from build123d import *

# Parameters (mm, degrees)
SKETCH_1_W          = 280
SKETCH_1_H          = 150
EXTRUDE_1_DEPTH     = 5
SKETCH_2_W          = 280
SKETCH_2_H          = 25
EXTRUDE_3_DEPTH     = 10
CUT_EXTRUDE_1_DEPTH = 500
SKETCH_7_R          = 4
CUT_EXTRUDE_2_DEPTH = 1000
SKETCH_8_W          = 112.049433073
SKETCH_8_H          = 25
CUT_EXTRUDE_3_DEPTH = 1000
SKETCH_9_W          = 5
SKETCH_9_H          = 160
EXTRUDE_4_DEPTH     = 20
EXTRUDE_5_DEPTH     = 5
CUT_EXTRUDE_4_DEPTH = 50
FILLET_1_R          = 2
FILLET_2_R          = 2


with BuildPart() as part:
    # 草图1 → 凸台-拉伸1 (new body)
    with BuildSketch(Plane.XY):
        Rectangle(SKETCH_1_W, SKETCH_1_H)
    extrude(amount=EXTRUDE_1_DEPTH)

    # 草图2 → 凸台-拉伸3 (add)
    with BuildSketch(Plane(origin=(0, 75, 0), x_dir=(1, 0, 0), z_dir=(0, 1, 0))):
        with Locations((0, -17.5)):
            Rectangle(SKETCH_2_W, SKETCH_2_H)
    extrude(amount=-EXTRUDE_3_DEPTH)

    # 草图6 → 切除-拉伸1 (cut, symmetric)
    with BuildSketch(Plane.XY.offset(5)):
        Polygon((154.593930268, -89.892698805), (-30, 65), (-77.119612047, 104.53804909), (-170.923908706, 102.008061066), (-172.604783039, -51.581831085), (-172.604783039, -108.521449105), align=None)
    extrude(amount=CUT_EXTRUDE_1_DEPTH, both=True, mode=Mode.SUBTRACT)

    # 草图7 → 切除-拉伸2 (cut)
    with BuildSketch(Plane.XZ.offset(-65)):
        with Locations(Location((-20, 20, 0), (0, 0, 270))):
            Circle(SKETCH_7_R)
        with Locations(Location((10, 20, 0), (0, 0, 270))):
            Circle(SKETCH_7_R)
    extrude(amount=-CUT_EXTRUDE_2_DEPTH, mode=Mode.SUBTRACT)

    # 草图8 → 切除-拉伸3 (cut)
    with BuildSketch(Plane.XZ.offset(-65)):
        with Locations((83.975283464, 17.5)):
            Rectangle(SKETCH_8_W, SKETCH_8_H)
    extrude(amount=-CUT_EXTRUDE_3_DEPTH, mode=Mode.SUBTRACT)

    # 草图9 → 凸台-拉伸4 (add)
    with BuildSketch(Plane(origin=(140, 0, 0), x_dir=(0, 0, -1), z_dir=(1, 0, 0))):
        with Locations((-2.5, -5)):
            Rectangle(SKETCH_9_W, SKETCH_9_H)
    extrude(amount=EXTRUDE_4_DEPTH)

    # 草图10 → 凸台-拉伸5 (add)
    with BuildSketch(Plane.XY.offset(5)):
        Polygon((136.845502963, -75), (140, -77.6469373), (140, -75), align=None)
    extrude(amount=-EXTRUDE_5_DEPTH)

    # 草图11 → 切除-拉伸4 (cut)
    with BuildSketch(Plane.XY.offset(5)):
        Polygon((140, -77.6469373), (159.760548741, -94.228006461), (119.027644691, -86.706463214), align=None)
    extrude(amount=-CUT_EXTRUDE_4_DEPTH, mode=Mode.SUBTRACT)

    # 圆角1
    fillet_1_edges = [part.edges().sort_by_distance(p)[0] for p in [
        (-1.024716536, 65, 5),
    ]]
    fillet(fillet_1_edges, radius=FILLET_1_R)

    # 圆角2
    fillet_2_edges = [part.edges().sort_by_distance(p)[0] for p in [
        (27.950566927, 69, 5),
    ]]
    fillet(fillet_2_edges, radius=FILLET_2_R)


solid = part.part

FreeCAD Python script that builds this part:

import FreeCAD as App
import Part
import Sketcher
Q = App.Units.Quantity


def edges_at(feature, points):
    """Names of the edges that pass closest to the given points."""
    edges = feature.Shape.Edges
    near = lambda p: min(range(len(edges)), key=lambda i: edges[i].distToShape(Part.Vertex(*p))[0])
    return sorted({f"Edge{near(p) + 1}" for p in points})

doc = App.newDocument("Part")
body = doc.addObject("PartDesign::Body", "Body")

# Sketch on XY plane
sketch1 = doc.addObject("Sketcher::SketchObject", "Sketch")
body.addObject(sketch1)
sketch1.AttachmentSupport = (doc.XY_Plane, [""])
sketch1.MapMode = "FlatFace"
sketch1.addGeometry([
    Part.LineSegment(App.Vector(-140, 75, 0), App.Vector(-140, -75, 0)),
    Part.LineSegment(App.Vector(-140, -75, 0), App.Vector(140, -75, 0)),
    Part.LineSegment(App.Vector(140, -75, 0), App.Vector(140, 75, 0)),
    Part.LineSegment(App.Vector(140, 75, 0), App.Vector(-140, 75, 0)),
], False)
sketch1.addConstraint([
    Sketcher.Constraint("Coincident", 0, 2, 1, 1),
    Sketcher.Constraint("Coincident", 1, 2, 2, 1),
    Sketcher.Constraint("Coincident", 2, 2, 3, 1),
    Sketcher.Constraint("Coincident", 3, 2, 0, 1),
    Sketcher.Constraint("Vertical", 0),
    Sketcher.Constraint("Horizontal", 1),
    Sketcher.Constraint("Vertical", 2),
    Sketcher.Constraint("Horizontal", 3),
    Sketcher.Constraint("Symmetric", 0, 2, 2, 2, -1, 1),
    Sketcher.Constraint("DistanceX", 1, 1, 1, 2, 280.0),
    Sketcher.Constraint("DistanceY", 0, 2, 0, 1, 150.0),
])
pad1 = doc.addObject("PartDesign::Pad", "Pad")
body.addObject(pad1)
pad1.Profile = sketch1
pad1.Length = 5

# Sketch on XZ plane
sketch2 = doc.addObject("Sketcher::SketchObject", "Sketch001")
body.addObject(sketch2)
sketch2.AttachmentSupport = (doc.XZ_Plane, [""])
sketch2.MapMode = "FlatFace"
sketch2.AttachmentOffset = App.Placement(App.Vector(0, 0, -75), App.Rotation())
sketch2.addGeometry([
    Part.LineSegment(App.Vector(-140, 5, 0), App.Vector(-140, 30, 0)),
    Part.LineSegment(App.Vector(-140, 30, 0), App.Vector(140, 30, 0)),
    Part.LineSegment(App.Vector(140, 30, 0), App.Vector(140, 5, 0)),
    Part.LineSegment(App.Vector(140, 5, 0), App.Vector(-140, 5, 0)),
], False)
sketch2.addConstraint([
    Sketcher.Constraint("Coincident", 0, 2, 1, 1),
    Sketcher.Constraint("Coincident", 1, 2, 2, 1),
    Sketcher.Constraint("Coincident", 2, 2, 3, 1),
    Sketcher.Constraint("Coincident", 3, 2, 0, 1),
    Sketcher.Constraint("Vertical", 0),
    Sketcher.Constraint("Horizontal", 1),
    Sketcher.Constraint("Vertical", 2),
    Sketcher.Constraint("Horizontal", 3),
    Sketcher.Constraint("DistanceX", 1, 1, 1, 2, 280.0),
    Sketcher.Constraint("DistanceY", 0, 1, 0, 2, 25.0),
    Sketcher.Constraint("DistanceX", 0, 2, -1, 1, 140.0),
    Sketcher.Constraint("DistanceY", -1, 1, 0, 2, 30.0),
])
pad2 = doc.addObject("PartDesign::Pad", "Pad001")
body.addObject(pad2)
pad2.Profile = sketch2
pad2.Length = 10

# Sketch on XY plane
sketch3 = doc.addObject("Sketcher::SketchObject", "Sketch002")
body.addObject(sketch3)
sketch3.AttachmentSupport = (doc.XY_Plane, [""])
sketch3.MapMode = "FlatFace"
sketch3.AttachmentOffset = App.Placement(App.Vector(0, 0, 5), App.Rotation())
sketch3.addGeometry([
    Part.LineSegment(App.Vector(155, -90, 0), App.Vector(-30, 65, 0)),  # 0
    Part.LineSegment(App.Vector(-30, 65, 0), App.Vector(-77, 105, 0)),  # 1
    Part.LineSegment(App.Vector(-77, 105, 0), App.Vector(-171, 102, 0)),  # 2
    Part.LineSegment(App.Vector(-171, 102, 0), App.Vector(-173, -52, 0)),  # 3
    Part.LineSegment(App.Vector(-173, -52, 0), App.Vector(-173, -109, 0)),  # 4
    Part.LineSegment(App.Vector(-173, -109, 0), App.Vector(155, -90, 0)),  # 5
], False)
sketch3.addConstraint([
    Sketcher.Constraint("Coincident", 0, 2, 1, 1),
    Sketcher.Constraint("Coincident", 1, 2, 2, 1),
    Sketcher.Constraint("Coincident", 2, 2, 3, 1),
    Sketcher.Constraint("Coincident", 3, 2, 4, 1),
    Sketcher.Constraint("Coincident", 4, 2, 5, 1),
    Sketcher.Constraint("Coincident", 5, 2, 0, 1),
    Sketcher.Constraint("Vertical", 4),
    Sketcher.Constraint("Parallel", 0, 1),
    Sketcher.Constraint("Angle", 0, Q("140 deg")),
    Sketcher.Constraint("DistanceX", 0, 2, -1, 1, 30.0),
    Sketcher.Constraint("DistanceY", -1, 1, 0, 2, 65.0),
    Sketcher.Constraint("DistanceY", 4, 2, 4, 1, 56.939618),
    Sketcher.Constraint("DistanceY", 5, 2, -1, 1, 89.892699),
    Sketcher.Constraint("DistanceY", 4, 2, 1, 2, 213.059498),
    Sketcher.Constraint("Distance", 2, 93.838409),
    Sketcher.Constraint("Distance", 3, 153.59909),
    Sketcher.Constraint("Distance", 5, 327.728589),
    Sketcher.Constraint("DistanceY", -1, 1, 1, 2, 104.538049),
])
pocket1 = doc.addObject("PartDesign::Pocket", "Pocket")
body.addObject(pocket1)
pocket1.Profile = sketch3
pocket1.Length = 1000
pocket1.Midplane = True

# Sketch on XZ plane
sketch4 = doc.addObject("Sketcher::SketchObject", "Sketch003")
body.addObject(sketch4)
sketch4.AttachmentSupport = (doc.XZ_Plane, [""])
sketch4.MapMode = "FlatFace"
sketch4.AttachmentOffset = App.Placement(App.Vector(0, 0, -65), App.Rotation())
sketch4.addGeometry([
    Part.Circle(App.Vector(-20, 20, 0), App.Vector(0, 0, 1), 4),
    Part.Circle(App.Vector(10, 20, 0), App.Vector(0, 0, 1), 4),
], False)
sketch4.addConstraint([
    Sketcher.Constraint("Equal", 0, 1),
    Sketcher.Constraint("Horizontal", 0, 3, 1, 3),
    Sketcher.Constraint("Diameter", 0, 8.0),
    Sketcher.Constraint("DistanceX", 0, 3, -1, 1, 20.0),
    Sketcher.Constraint("DistanceY", -1, 1, 0, 3, 20.0),
    Sketcher.Constraint("DistanceX", -1, 1, 1, 3, 10.0),
])
pocket2 = doc.addObject("PartDesign::Pocket", "Pocket001")
body.addObject(pocket2)
pocket2.Profile = sketch4
pocket2.Length = 1000

# Sketch on XZ plane
sketch5 = doc.addObject("Sketcher::SketchObject", "Sketch004")
body.addObject(sketch5)
sketch5.AttachmentSupport = (doc.XZ_Plane, [""])
sketch5.MapMode = "FlatFace"
sketch5.AttachmentOffset = App.Placement(App.Vector(0, 0, -65), App.Rotation())
sketch5.addGeometry([
    Part.LineSegment(App.Vector(28, 30, 0), App.Vector(28, 5, 0)),
    Part.LineSegment(App.Vector(28, 5, 0), App.Vector(140, 5, 0)),
    Part.LineSegment(App.Vector(140, 5, 0), App.Vector(140, 30, 0)),
    Part.LineSegment(App.Vector(140, 30, 0), App.Vector(28, 30, 0)),
], False)
sketch5.addConstraint([
    Sketcher.Constraint("Coincident", 0, 2, 1, 1),
    Sketcher.Constraint("Coincident", 1, 2, 2, 1),
    Sketcher.Constraint("Coincident", 2, 2, 3, 1),
    Sketcher.Constraint("Coincident", 3, 2, 0, 1),
    Sketcher.Constraint("Vertical", 0),
    Sketcher.Constraint("Horizontal", 1),
    Sketcher.Constraint("Vertical", 2),
    Sketcher.Constraint("Horizontal", 3),
    Sketcher.Constraint("DistanceY", 0, 2, 0, 1, 25.0),
    Sketcher.Constraint("DistanceY", -1, 1, 0, 2, 5.0),
    Sketcher.Constraint("DistanceX", -1, 1, 1, 2, 140.0),
    Sketcher.Constraint("DistanceX", 1, 1, 1, 2, 112.049433),
])
pocket3 = doc.addObject("PartDesign::Pocket", "Pocket002")
body.addObject(pocket3)
pocket3.Profile = sketch5
pocket3.Length = 1000

# Sketch on YZ plane
sketch6 = doc.addObject("Sketcher::SketchObject", "Sketch005")
body.addObject(sketch6)
sketch6.AttachmentSupport = (doc.YZ_Plane, [""])
sketch6.MapMode = "FlatFace"
sketch6.AttachmentOffset = App.Placement(App.Vector(0, 0, 140), App.Rotation())
sketch6.addGeometry([
    Part.LineSegment(App.Vector(75, 5, 0), App.Vector(-85, 5, 0)),
    Part.LineSegment(App.Vector(-85, 5, 0), App.Vector(-85, 0, 0)),
    Part.LineSegment(App.Vector(-85, 0, 0), App.Vector(75, 0, 0)),
    Part.LineSegment(App.Vector(75, 0, 0), App.Vector(75, 5, 0)),
], False)
sketch6.addConstraint([
    Sketcher.Constraint("Coincident", 0, 2, 1, 1),
    Sketcher.Constraint("Coincident", 1, 2, 2, 1),
    Sketcher.Constraint("Coincident", 2, 2, 3, 1),
    Sketcher.Constraint("Coincident", 3, 2, 0, 1),
    Sketcher.Constraint("Horizontal", 0),
    Sketcher.Constraint("Vertical", 1),
    Sketcher.Constraint("Horizontal", 2),
    Sketcher.Constraint("Vertical", 3),
    Sketcher.Constraint("PointOnObject", 1, 2, -1),
    Sketcher.Constraint("DistanceX", 0, 2, 0, 1, 160.0),
    Sketcher.Constraint("DistanceY", 1, 2, 1, 1, 5.0),
    Sketcher.Constraint("DistanceX", 0, 2, -1, 1, 85.0),
])
pad3 = doc.addObject("PartDesign::Pad", "Pad002")
body.addObject(pad3)
pad3.Profile = sketch6
pad3.Length = 20

# Sketch on XY plane
sketch7 = doc.addObject("Sketcher::SketchObject", "Sketch006")
body.addObject(sketch7)
sketch7.AttachmentSupport = (doc.XY_Plane, [""])
sketch7.MapMode = "FlatFace"
sketch7.AttachmentOffset = App.Placement(App.Vector(0, 0, 5), App.Rotation())
sketch7.addGeometry([
    Part.LineSegment(App.Vector(136.8, -75, 0), App.Vector(140, -77.6, 0)),
    Part.LineSegment(App.Vector(140, -77.6, 0), App.Vector(140, -75, 0)),
    Part.LineSegment(App.Vector(140, -75, 0), App.Vector(136.8, -75, 0)),
], False)
sketch7.addConstraint([
    Sketcher.Constraint("Coincident", 0, 2, 1, 1),
    Sketcher.Constraint("Coincident", 1, 2, 2, 1),
    Sketcher.Constraint("Coincident", 2, 2, 0, 1),
    Sketcher.Constraint("Vertical", 1),
    Sketcher.Constraint("Horizontal", 2),
    Sketcher.Constraint("Angle", 0, Q("-40 deg")),
    Sketcher.Constraint("DistanceX", -1, 1, 0, 2, 140.0),
    Sketcher.Constraint("DistanceY", 1, 2, -1, 1, 75.0),
    Sketcher.Constraint("DistanceX", 2, 2, 2, 1, 3.154497),
])
pad4 = doc.addObject("PartDesign::Pad", "Pad003")
body.addObject(pad4)
pad4.Profile = sketch7
pad4.Length = 5
pad4.Reversed = True

# Sketch on XY plane
sketch8 = doc.addObject("Sketcher::SketchObject", "Sketch007")
body.addObject(sketch8)
sketch8.AttachmentSupport = (doc.XY_Plane, [""])
sketch8.MapMode = "FlatFace"
sketch8.AttachmentOffset = App.Placement(App.Vector(0, 0, 5), App.Rotation())
sketch8.addGeometry([
    Part.LineSegment(App.Vector(160, -94, 0), App.Vector(140, -78, 0)),
    Part.LineSegment(App.Vector(140, -78, 0), App.Vector(119, -87, 0)),
    Part.LineSegment(App.Vector(119, -87, 0), App.Vector(160, -94, 0)),
], False)
sketch8.addConstraint([
    Sketcher.Constraint("Coincident", 0, 2, 1, 1),
    Sketcher.Constraint("Coincident", 1, 2, 2, 1),
    Sketcher.Constraint("Coincident", 2, 2, 0, 1),
    Sketcher.Constraint("Angle", 0, Q("140 deg")),
    Sketcher.Constraint("DistanceX", -1, 1, 0, 2, 140.0),
    Sketcher.Constraint("Distance", 2, 41.421529),
    Sketcher.Constraint("DistanceX", -1, 1, 2, 2, 159.760549),
    Sketcher.Constraint("Distance", 1, 22.845452),
    Sketcher.Constraint("DistanceY", 0, 2, -1, 1, 77.646937),
])
pocket4 = doc.addObject("PartDesign::Pocket", "Pocket003")
body.addObject(pocket4)
pocket4.Profile = sketch8
pocket4.Length = 50
doc.recompute()

fillet = doc.addObject("PartDesign::Fillet", "Fillet")
body.addObject(fillet)
fillet.Base = (pocket4, edges_at(pocket4, [(-1.025, 65, 5)]))
fillet.Radius = 2
doc.recompute()

fillet2 = doc.addObject("PartDesign::Fillet", "Fillet001")
body.addObject(fillet2)
fillet2.Base = (fillet, edges_at(fillet, [(27.951, 69, 5)]))
fillet2.Radius = 2

doc.recompute()
